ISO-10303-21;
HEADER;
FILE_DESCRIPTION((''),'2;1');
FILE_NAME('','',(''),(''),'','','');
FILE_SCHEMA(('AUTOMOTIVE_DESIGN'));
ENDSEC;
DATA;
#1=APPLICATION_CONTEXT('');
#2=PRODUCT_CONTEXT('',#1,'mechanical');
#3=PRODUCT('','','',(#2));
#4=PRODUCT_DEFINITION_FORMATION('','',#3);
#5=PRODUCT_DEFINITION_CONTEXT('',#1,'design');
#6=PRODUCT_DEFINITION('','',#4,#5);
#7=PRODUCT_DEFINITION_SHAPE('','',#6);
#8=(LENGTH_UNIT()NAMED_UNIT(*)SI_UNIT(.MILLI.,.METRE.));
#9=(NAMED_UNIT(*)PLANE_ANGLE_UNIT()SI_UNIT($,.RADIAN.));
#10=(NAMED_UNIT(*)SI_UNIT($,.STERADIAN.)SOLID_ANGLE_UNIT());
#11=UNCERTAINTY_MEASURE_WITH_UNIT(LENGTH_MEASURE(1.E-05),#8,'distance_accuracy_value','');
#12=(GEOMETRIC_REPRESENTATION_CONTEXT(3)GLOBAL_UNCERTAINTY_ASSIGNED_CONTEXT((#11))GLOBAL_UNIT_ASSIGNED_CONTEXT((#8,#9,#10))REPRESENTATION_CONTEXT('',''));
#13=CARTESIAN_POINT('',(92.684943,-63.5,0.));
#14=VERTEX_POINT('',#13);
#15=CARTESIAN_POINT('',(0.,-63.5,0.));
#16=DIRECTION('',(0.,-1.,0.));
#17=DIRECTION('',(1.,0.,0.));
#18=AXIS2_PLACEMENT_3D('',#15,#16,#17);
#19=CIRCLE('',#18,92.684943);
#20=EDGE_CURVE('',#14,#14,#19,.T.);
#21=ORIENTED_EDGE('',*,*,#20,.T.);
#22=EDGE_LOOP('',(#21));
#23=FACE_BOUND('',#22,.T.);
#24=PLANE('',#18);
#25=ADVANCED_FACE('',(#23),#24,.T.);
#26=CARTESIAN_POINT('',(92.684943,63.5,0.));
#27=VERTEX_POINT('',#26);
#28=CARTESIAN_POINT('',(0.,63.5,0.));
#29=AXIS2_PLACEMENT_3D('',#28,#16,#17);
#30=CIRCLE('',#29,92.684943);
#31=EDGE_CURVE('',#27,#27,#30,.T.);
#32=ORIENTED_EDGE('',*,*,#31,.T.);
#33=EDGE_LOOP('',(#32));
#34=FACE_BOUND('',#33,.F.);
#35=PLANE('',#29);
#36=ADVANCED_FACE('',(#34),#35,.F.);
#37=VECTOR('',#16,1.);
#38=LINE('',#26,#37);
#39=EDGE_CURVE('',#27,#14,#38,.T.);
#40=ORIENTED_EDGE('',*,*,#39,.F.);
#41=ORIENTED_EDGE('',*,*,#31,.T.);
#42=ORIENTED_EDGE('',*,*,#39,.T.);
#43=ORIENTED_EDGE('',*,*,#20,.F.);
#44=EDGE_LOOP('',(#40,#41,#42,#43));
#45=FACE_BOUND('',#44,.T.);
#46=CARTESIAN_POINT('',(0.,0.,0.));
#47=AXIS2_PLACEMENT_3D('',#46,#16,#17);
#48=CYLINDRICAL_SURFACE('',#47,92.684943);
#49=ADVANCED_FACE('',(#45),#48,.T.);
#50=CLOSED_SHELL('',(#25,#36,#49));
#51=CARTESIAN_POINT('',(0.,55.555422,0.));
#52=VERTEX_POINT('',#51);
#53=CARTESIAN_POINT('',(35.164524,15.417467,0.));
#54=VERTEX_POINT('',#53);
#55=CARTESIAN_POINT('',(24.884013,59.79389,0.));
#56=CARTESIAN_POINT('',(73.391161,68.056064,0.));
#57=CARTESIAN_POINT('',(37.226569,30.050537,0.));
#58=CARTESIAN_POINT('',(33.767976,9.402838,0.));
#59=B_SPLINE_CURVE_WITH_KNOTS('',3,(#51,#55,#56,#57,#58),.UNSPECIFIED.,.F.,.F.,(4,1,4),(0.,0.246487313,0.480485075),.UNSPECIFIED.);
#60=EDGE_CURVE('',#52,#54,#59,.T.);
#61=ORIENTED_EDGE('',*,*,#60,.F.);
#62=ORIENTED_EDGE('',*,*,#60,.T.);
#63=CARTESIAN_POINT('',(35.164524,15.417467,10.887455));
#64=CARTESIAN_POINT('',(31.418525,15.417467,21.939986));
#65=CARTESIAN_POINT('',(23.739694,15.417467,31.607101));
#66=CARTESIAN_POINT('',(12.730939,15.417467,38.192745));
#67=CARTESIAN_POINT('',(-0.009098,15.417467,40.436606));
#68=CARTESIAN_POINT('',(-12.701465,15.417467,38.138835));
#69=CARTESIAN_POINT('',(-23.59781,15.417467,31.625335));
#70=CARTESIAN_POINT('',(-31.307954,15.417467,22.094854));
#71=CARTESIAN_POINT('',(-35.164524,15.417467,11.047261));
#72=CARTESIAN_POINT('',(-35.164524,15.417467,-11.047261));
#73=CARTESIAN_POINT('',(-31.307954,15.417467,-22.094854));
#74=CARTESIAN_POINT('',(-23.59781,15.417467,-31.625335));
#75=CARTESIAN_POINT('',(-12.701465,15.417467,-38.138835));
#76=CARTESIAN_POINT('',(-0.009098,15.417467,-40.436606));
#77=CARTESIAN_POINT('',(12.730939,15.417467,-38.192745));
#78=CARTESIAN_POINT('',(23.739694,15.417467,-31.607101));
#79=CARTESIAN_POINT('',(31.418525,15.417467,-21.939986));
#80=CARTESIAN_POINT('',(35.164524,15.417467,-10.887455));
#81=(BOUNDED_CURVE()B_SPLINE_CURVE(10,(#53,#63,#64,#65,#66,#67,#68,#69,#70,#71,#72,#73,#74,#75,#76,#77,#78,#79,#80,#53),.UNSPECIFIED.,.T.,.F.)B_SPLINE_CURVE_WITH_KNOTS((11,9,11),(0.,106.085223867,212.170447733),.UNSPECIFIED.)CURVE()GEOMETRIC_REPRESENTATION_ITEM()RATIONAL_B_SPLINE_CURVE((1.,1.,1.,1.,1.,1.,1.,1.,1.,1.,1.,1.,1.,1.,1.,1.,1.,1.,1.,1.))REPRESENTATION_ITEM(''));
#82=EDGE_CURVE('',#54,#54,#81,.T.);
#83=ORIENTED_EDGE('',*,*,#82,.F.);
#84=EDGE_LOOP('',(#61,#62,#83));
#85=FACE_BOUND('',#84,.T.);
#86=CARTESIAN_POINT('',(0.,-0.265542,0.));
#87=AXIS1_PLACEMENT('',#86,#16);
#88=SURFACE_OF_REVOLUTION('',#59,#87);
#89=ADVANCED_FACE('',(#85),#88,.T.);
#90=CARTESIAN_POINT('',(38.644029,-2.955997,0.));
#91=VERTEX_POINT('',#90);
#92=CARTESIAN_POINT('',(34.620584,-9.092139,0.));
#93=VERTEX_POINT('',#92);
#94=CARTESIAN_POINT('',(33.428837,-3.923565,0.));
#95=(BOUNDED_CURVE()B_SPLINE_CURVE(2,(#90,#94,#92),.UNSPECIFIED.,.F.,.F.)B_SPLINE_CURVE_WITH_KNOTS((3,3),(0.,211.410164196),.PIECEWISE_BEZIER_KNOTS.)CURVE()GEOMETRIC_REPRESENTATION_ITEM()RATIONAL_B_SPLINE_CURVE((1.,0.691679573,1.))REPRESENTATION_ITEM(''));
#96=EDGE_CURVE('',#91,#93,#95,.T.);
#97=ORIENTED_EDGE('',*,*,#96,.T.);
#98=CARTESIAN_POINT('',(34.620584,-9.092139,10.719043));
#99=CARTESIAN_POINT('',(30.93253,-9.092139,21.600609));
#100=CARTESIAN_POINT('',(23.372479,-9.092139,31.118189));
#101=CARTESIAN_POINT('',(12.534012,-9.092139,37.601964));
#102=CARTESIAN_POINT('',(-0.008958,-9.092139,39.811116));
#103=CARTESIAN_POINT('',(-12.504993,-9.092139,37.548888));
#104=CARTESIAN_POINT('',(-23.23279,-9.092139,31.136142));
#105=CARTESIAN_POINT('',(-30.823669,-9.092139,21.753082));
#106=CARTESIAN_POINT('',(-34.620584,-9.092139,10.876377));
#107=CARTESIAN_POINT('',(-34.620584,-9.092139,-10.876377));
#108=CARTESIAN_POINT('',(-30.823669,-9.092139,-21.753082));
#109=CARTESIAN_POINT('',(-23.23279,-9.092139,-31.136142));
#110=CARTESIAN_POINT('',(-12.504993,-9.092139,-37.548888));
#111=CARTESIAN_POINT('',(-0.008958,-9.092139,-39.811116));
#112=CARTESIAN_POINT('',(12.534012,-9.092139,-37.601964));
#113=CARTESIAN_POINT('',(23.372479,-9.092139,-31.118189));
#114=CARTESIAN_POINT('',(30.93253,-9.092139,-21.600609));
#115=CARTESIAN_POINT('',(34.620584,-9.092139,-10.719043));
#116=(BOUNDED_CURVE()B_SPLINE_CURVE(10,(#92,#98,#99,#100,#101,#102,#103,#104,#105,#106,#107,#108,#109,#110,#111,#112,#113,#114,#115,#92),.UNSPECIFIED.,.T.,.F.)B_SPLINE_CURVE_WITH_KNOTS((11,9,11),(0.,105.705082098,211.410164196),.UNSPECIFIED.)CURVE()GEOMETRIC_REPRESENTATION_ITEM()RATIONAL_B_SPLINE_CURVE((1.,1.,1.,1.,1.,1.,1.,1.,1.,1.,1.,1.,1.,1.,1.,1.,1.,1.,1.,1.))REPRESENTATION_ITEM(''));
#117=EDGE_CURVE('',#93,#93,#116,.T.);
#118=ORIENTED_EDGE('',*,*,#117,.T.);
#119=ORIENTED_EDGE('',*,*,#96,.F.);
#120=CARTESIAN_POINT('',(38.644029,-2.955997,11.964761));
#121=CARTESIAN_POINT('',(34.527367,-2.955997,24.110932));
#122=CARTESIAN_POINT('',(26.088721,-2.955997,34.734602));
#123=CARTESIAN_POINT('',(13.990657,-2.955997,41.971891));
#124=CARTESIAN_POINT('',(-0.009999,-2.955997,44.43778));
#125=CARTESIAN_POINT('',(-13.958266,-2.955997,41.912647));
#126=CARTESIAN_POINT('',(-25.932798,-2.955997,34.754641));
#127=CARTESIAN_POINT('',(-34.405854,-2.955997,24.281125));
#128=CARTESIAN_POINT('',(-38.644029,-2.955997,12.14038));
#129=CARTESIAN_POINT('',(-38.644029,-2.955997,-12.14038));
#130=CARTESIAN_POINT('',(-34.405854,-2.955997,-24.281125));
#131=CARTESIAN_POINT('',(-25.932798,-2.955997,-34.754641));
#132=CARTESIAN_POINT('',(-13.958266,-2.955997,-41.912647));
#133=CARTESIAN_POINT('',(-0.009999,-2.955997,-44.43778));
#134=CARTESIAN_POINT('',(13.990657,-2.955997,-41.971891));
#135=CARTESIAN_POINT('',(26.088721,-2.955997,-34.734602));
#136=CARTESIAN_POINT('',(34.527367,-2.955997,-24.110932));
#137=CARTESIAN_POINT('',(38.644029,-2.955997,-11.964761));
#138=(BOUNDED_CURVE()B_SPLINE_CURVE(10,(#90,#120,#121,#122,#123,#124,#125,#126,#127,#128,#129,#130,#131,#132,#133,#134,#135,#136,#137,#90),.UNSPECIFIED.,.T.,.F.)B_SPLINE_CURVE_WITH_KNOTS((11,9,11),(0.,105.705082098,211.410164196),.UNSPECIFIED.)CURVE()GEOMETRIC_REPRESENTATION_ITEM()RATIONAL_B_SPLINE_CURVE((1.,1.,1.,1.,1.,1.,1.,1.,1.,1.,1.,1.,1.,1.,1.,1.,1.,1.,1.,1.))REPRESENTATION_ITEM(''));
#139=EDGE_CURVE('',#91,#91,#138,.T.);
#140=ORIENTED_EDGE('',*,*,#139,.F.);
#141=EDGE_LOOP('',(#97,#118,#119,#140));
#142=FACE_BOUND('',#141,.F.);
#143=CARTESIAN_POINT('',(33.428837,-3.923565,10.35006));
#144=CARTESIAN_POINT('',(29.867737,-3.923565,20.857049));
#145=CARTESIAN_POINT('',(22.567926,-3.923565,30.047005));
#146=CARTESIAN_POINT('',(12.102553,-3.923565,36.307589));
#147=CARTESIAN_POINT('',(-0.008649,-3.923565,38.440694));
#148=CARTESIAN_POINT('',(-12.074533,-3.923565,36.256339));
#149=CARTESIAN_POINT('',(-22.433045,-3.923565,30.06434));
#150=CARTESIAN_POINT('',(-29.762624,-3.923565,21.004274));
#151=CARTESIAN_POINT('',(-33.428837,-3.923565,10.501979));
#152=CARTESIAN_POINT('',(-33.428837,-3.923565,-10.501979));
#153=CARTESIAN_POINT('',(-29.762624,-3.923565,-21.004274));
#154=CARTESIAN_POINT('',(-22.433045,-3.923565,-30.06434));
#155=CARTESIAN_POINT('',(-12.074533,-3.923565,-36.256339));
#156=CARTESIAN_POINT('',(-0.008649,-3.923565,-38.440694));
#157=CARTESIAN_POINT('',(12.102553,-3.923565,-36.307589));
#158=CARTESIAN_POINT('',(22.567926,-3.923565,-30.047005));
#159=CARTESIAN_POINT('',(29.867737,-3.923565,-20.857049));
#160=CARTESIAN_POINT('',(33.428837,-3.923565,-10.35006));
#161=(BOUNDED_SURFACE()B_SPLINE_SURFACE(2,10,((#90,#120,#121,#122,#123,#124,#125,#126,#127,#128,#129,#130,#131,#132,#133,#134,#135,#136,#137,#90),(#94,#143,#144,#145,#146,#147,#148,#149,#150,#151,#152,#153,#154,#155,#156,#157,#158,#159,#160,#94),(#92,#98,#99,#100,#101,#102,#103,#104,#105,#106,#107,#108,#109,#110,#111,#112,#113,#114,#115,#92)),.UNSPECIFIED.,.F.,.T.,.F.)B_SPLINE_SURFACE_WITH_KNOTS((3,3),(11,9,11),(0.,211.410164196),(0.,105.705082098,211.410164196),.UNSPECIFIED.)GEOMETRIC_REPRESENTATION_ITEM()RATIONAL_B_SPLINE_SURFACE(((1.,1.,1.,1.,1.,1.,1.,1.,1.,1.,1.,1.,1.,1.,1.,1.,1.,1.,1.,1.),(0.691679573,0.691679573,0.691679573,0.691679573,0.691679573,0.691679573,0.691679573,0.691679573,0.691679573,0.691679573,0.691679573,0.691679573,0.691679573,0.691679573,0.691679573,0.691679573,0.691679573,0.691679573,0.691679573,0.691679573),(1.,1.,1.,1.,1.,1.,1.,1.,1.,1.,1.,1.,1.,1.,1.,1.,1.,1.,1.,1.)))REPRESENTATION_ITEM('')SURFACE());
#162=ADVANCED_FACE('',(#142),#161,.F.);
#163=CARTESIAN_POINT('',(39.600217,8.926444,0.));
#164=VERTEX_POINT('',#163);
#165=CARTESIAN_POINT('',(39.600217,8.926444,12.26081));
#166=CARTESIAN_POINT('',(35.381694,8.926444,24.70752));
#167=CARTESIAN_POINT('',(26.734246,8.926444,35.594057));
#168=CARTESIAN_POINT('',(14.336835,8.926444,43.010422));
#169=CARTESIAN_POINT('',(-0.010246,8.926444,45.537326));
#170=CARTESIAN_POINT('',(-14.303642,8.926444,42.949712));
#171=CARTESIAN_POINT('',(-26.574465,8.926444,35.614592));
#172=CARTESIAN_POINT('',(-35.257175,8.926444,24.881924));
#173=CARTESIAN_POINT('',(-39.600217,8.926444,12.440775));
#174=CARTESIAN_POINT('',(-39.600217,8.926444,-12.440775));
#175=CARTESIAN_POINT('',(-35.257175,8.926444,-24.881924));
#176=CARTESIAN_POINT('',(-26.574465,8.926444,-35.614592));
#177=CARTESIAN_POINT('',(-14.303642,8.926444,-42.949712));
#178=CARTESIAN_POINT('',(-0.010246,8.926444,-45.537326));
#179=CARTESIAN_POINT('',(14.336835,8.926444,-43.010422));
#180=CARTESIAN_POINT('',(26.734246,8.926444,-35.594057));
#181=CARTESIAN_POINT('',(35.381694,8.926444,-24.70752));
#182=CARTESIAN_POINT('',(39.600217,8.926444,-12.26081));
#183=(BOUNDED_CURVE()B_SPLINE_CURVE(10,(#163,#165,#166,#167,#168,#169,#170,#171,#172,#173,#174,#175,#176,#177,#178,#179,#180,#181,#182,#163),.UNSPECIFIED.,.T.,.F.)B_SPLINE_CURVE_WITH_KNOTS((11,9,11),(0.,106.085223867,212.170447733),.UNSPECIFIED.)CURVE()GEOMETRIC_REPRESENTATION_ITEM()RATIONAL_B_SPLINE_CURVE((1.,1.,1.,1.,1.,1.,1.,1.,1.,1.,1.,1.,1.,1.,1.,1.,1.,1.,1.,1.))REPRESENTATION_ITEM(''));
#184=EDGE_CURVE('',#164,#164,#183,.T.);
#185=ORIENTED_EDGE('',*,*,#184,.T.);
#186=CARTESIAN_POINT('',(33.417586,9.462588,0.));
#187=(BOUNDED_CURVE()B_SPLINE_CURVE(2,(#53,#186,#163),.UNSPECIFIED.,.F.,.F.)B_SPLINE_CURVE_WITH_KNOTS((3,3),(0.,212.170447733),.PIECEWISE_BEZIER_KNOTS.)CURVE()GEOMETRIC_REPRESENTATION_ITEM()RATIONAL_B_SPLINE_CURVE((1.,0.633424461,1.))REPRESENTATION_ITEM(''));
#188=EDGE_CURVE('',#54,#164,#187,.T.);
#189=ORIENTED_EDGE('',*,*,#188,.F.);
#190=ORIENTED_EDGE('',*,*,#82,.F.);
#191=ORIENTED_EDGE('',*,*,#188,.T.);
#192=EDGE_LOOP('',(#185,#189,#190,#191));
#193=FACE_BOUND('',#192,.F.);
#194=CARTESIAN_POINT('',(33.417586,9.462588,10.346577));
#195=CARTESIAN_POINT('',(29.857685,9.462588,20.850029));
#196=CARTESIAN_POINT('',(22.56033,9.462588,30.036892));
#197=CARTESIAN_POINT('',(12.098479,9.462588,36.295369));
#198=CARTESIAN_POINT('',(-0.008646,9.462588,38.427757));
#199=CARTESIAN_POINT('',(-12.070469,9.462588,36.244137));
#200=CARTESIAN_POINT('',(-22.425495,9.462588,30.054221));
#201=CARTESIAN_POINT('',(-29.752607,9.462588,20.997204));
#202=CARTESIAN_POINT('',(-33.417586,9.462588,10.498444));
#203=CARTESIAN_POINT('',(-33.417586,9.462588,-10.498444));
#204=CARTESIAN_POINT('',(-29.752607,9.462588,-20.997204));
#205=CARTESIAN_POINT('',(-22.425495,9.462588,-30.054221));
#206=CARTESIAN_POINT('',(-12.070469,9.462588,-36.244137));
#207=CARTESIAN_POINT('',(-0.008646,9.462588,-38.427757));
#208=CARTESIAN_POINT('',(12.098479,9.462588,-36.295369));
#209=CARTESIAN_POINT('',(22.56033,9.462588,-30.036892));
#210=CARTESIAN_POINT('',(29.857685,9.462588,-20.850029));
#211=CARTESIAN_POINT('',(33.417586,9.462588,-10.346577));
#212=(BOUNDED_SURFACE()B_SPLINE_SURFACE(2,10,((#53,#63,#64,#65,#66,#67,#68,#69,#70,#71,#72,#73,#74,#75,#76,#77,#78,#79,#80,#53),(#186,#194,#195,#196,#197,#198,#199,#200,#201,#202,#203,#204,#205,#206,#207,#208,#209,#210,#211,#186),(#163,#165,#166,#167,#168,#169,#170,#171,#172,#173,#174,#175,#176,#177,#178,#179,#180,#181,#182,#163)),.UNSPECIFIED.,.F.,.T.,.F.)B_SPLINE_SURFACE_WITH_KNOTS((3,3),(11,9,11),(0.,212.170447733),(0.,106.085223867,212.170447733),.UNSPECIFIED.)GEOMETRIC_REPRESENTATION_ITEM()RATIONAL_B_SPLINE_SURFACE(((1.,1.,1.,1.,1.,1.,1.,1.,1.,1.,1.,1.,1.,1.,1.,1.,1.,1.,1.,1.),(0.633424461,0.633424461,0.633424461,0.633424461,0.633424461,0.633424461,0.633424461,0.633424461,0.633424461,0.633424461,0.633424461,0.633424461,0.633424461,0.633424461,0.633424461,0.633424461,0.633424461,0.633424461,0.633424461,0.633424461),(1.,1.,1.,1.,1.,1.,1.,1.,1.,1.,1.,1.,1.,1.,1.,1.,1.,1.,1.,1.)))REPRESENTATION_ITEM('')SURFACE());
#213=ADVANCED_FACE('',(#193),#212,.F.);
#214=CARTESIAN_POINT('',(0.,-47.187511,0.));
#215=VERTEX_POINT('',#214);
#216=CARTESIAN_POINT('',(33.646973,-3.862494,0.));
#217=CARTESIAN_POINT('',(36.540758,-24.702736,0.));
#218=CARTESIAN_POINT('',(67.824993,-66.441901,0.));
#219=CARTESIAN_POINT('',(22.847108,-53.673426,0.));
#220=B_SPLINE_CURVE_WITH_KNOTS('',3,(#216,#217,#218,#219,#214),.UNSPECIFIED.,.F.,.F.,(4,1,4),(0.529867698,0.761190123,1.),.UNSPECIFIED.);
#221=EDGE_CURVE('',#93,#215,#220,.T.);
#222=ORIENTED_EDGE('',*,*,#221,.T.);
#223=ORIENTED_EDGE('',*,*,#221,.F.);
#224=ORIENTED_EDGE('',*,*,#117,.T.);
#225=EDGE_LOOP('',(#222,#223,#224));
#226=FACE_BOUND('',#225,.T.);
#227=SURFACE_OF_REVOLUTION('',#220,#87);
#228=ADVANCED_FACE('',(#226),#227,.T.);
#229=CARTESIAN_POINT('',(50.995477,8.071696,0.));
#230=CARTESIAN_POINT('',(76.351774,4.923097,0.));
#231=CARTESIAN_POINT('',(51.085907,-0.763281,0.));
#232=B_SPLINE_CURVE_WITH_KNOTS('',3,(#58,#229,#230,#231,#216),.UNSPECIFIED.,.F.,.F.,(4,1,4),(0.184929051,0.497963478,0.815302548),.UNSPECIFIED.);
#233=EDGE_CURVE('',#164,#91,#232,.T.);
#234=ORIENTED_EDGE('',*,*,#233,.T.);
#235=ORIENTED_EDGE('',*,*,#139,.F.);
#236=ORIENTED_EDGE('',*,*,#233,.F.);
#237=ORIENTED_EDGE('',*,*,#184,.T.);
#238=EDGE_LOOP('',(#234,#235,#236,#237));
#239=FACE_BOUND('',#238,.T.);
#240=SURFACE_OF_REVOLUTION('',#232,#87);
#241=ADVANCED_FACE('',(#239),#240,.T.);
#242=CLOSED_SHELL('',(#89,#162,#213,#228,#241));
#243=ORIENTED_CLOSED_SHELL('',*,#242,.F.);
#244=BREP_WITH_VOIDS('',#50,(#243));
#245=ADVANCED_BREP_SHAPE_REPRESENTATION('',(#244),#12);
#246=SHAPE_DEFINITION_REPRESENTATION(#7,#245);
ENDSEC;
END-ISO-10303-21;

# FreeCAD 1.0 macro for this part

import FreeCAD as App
import Part
import Sketcher

V = App.Vector
Q = App.Units.Quantity

doc = App.newDocument("Part")
body = doc.addObject("PartDesign::Body", "Body")

# Sketch on XY plane
sketch1 = body.newObject("Sketcher::SketchObject", "Sketch")
sketch1.AttachmentSupport = (doc.getObject("XY_Plane"), [""])
sketch1.MapMode = "FlatFace"
sketch1.addGeometry([
    Part.BSplineCurve([V(0, 55.555422, 0), V(24.884013, 59.79389, 0), V(73.391161, 68.056064, 0), V(37.226569, 30.050537, 0), V(33.767976, 9.402838, 0)], [4, 1, 4], [0, 0.246487313, 0.480485075], False, 3, [1, 1, 1, 1, 1], False),
    Part.LineSegment(V(0, 55.555422, 0), V(0, -47.187511, 0)),
    Part.BSplineCurve([V(33.646973, -3.862494, 0), V(36.540758, -24.702736, 0), V(67.824993, -66.441901, 0), V(22.847108, -53.673426, 0), V(0, -47.187511, 0)], [4, 1, 4], [0.529867698, 0.761190123, 1], False, 3, [1, 1, 1, 1, 1], False),
    Part.BSplineCurve([V(33.767976, 9.402838, 0), V(50.995477, 8.071696, 0), V(76.351774, 4.923097, 0), V(51.085907, -0.763281, 0), V(33.646973, -3.862494, 0)], [4, 1, 4], [0.184929051, 0.497963478, 0.815302548], False, 3, [1, 1, 1, 1, 1], False),
], False)
sketch1.addConstraint([
    Sketcher.Constraint("Block", 0),
    Sketcher.Constraint("Block", 2),
    Sketcher.Constraint("Block", 3),
    Sketcher.Constraint("Coincident", 0, 1, 1, 1),
    Sketcher.Constraint("Coincident", 1, 2, 2, 2),
])
revolution = body.newObject("PartDesign::Revolution", "Revolution")
revolution.Profile = sketch1
revolution.ReferenceAxis = (sketch1, ["V_Axis"])
revolution.Angle = 360
doc.recompute()

fillet = body.newObject("PartDesign::Fillet", "Fillet")
fillet.Base = (revolution, ["Edge1"])
fillet.UseAllEdges = True
fillet.Radius = Q("0.2 in")
body2 = doc.addObject("PartDesign::Body", "Body001")

# Sketch on XZ plane
sketch2 = body2.newObject("Sketcher::SketchObject", "Sketch001")
sketch2.AttachmentSupport = (doc.getObject("XZ_Plane001"), [""])
sketch2.MapMode = "FlatFace"
sketch2.addGeometry(Part.Circle(V(0, 0, 0), V(0, 0, 1), 92.684943), False)
sketch2.addConstraint([
    Sketcher.Constraint("Coincident", 0, 3, -1, 1),
    Sketcher.Constraint("Diameter", 0, 185.369887),
])
pad1 = body2.newObject("PartDesign::Pad", "Pad")
pad1.Profile = sketch2
pad1.Length = Q("5 in")
pad1.Midplane = True
doc.recompute()

boolean = body2.newObject("PartDesign::Boolean", "Boolean")
boolean.Type = "Cut"
boolean.addObjects([body])

doc.recompute()
